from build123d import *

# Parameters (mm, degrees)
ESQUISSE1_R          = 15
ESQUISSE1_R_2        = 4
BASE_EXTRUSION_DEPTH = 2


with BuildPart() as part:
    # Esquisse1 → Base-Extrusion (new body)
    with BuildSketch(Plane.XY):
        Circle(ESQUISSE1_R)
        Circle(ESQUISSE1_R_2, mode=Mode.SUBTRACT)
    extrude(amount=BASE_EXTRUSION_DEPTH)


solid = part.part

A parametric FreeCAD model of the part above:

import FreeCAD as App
import Part
import Sketcher
from FreeCAD import Vector

doc = App.newDocument("Part")
body = doc.addObject("PartDesign::Body", "Body")

sketch1 = doc.addObject("Sketcher::SketchObject", "Sketch")
body.addObject(sketch1)
sketch1.AttachmentSupport = (doc.XY_Plane, [""])
sketch1.MapMode = "FlatFace"
sketch1.addGeometry([
    Part.Circle(Vector(0, 0, 0), Vector(0, 0, 1), 15),
    Part.Circle(Vector(0, 0, 0), Vector(0, 0, 1), 4),
], False)
sketch1.addConstraint([
    Sketcher.Constraint("Coincident", 0, 3, -1, 1),
    Sketcher.Constraint("Coincident", 1, 3, -1, 1),
    Sketcher.Constraint("Diameter", 0, 30.0),
    Sketcher.Constraint("Diameter", 1, 8.0),
])
pad1 = doc.addObject("PartDesign::Pad", "Pad")
body.addObject(pad1)
pad1.Profile = sketch1
pad1.Length = 2

doc.recompute()
